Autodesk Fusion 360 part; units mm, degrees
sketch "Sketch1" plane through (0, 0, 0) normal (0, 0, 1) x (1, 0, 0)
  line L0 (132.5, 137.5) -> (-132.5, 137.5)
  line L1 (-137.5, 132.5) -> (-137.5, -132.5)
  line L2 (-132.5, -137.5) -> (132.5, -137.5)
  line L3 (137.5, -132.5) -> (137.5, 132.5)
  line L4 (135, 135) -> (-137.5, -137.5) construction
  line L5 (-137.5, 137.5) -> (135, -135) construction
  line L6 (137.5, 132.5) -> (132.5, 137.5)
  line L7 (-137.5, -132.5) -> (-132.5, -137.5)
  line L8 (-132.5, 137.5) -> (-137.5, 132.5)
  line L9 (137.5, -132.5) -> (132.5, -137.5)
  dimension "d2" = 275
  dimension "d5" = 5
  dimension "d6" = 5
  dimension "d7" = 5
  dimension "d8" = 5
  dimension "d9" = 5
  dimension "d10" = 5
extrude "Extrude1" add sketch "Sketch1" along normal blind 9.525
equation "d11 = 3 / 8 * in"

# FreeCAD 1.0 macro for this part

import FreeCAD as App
import Part
import Sketcher


def add_polygon(sketch, points):
    """Adds a closed chain of lines whose ends are joined by coincident constraints."""
    first, n = sketch.GeometryCount, len(points)
    for a, b in zip(points, points[1:] + points[:1]):
        sketch.addGeometry(Part.LineSegment(App.Vector(*a, 0), App.Vector(*b, 0)), False)
    for i in range(n):
        sketch.addConstraint(Sketcher.Constraint("Coincident", first + i, 2, first + (i + 1) % n, 1))

doc = App.newDocument("Part")
body = doc.addObject("PartDesign::Body", "Body")

# Sketch on XY plane
sketch1 = doc.addObject("Sketcher::SketchObject", "Sketch")
body.addObject(sketch1)
sketch1.AttachmentSupport = (doc.XY_Plane, [""])
sketch1.MapMode = "FlatFace"
add_polygon(sketch1, [(138, 132), (132, 138), (-132, 138), (-138, 132), (-138, -132), (-132, -138), (132, -138), (138, -132)])  # lines 0-7
sketch1.addConstraint([
    Sketcher.Constraint("Horizontal", 1),
    Sketcher.Constraint("Vertical", 3),
    Sketcher.Constraint("Horizontal", 5),
    Sketcher.Constraint("Vertical", 7),
    Sketcher.Constraint("Symmetric", 0, 2, 4, 2, -1, 1),
    Sketcher.Constraint("Symmetric", 2, 2, 6, 2, -1, 1),
    Sketcher.Constraint("Perpendicular", 0, 2),
    Sketcher.Constraint("Perpendicular", 2, 4),
    Sketcher.Constraint("Perpendicular", 4, 6),
    Sketcher.Constraint("Horizontal", 3, 2, 6, 2),
    Sketcher.Constraint("Vertical", 1, 2, 4, 2),
    Sketcher.Constraint("Equal", 5, 3),
    Sketcher.Constraint("DistanceX", 2, 2, 1, 2, 5.0),
    Sketcher.Constraint("DistanceY", 4, 2, 1, 2, 275.0),
])
pad1 = doc.addObject("PartDesign::Pad", "Pad")
body.addObject(pad1)
pad1.Profile = sketch1
pad1.Length = 9.525

doc.recompute()
